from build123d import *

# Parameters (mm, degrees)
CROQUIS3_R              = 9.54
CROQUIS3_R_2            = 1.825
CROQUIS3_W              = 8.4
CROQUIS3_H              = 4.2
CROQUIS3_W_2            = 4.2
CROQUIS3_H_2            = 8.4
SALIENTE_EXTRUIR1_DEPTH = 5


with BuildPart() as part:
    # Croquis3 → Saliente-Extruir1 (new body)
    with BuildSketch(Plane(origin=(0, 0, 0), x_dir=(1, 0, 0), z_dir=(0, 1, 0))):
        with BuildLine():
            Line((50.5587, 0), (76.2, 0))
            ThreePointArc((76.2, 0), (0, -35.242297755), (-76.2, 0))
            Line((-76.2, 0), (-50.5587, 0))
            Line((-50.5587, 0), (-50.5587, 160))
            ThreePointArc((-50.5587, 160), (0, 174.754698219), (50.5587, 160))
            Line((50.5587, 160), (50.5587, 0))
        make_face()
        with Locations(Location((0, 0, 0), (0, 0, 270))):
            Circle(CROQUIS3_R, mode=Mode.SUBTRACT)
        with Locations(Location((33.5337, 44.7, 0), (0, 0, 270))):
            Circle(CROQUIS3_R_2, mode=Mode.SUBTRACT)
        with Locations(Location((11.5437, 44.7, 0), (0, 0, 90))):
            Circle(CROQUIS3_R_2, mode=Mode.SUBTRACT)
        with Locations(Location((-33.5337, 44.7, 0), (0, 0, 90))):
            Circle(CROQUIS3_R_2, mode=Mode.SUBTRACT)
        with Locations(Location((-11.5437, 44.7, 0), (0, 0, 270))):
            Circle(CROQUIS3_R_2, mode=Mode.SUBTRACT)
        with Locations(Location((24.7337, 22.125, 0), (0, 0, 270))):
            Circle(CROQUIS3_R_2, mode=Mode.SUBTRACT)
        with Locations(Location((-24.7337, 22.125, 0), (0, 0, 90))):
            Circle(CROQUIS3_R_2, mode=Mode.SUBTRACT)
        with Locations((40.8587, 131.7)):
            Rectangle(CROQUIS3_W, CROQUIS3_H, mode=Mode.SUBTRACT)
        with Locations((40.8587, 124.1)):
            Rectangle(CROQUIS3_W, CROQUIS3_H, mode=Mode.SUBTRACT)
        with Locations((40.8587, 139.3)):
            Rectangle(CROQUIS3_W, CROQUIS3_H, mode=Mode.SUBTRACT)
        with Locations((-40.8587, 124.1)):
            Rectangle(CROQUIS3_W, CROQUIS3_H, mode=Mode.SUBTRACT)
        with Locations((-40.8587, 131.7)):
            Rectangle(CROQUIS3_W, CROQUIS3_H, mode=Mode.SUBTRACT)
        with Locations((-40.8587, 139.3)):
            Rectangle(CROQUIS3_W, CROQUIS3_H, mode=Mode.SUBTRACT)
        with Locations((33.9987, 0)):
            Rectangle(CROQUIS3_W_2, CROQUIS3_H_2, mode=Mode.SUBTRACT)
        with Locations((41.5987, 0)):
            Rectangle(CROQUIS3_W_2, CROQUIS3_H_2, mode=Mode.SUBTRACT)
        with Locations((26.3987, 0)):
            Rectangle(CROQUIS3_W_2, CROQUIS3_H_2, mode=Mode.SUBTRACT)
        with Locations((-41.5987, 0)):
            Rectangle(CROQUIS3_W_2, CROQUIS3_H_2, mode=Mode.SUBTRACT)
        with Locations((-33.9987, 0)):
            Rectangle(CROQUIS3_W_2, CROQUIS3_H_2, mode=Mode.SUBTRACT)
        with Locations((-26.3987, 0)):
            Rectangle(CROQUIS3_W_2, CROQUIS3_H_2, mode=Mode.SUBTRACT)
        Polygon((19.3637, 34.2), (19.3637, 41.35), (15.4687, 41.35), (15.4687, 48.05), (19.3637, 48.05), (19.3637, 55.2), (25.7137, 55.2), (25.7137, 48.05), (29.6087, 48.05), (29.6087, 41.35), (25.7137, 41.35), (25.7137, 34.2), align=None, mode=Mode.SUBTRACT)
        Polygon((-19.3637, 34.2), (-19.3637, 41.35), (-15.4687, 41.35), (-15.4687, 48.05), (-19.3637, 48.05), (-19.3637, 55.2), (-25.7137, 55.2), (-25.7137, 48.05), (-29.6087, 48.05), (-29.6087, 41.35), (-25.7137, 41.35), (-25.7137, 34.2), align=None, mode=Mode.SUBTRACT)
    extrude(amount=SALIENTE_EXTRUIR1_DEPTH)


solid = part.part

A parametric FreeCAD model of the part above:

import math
import FreeCAD as App
import Part
import Sketcher


def add_polygon(sketch, points):
    """Adds a closed chain of lines whose ends are joined by coincident constraints."""
    first, n = sketch.GeometryCount, len(points)
    for a, b in zip(points, points[1:] + points[:1]):
        sketch.addGeometry(Part.LineSegment(App.Vector(*a, 0), App.Vector(*b, 0)), False)
    for i in range(n):
        sketch.addConstraint(Sketcher.Constraint("Coincident", first + i, 2, first + (i + 1) % n, 1))

doc = App.newDocument("Part")
body = doc.addObject("PartDesign::Body", "Body")

sketch1 = body.newObject("Sketcher::SketchObject", "Sketch")
sketch1.AttachmentSupport = (doc.getObject("XZ_Plane"), [""])
sketch1.MapMode = "FlatFace"
sketch1.addGeometry(Part.LineSegment(App.Vector(76.2, 0, 0), App.Vector(50.5587, 0, 0)), False)
sketch1.addGeometry(Part.LineSegment(App.Vector(50.5587, 0, 0), App.Vector(50.5587, -160, 0)), False)
sketch1.addGeometry(Part.ArcOfCircle(Part.Circle(App.Vector(0, -80.754698, 0), App.Vector(0, 0, 1), 94), math.radians(-122.537977), math.radians(-57.462023)), False)
sketch1.addGeometry(Part.LineSegment(App.Vector(-50.5587, -160, 0), App.Vector(-50.5587, 0, 0)), False)
sketch1.addGeometry(Part.LineSegment(App.Vector(-50.5587, 0, 0), App.Vector(-76.2, 0, 0)), False)
sketch1.addGeometry(Part.ArcOfCircle(Part.Circle(App.Vector(0, -64.757702, 0), App.Vector(0, 0, 1), 100), math.radians(40.359168), math.radians(139.640832)), False)
add_polygon(sketch1, [(39.4987, 4.2), (39.4987, -4.2), (43.6987, -4.2), (43.6987, 4.2)])
add_polygon(sketch1, [(31.8987, 4.2), (31.8987, -4.2), (36.0987, -4.2), (36.0987, 4.2)])
add_polygon(sketch1, [(24.2987, 4.2), (24.2987, -4.2), (28.4987, -4.2), (28.4987, 4.2)])
sketch1.addGeometry(Part.Circle(App.Vector(24.7337, -22.125, 0), App.Vector(0, 0, 1), 1.825), False)
sketch1.addGeometry(Part.Circle(App.Vector(0, 0, 0), App.Vector(0, 0, 1), 9.54), False)
sketch1.addGeometry(Part.Circle(App.Vector(33.5337, -44.7, 0), App.Vector(0, 0, 1), 1.825), False)
add_polygon(sketch1, [(19.3637, -34.2), (19.3637, -41.35), (15.4687, -41.35), (15.4687, -48.05), (19.3637, -48.05), (19.3637, -55.2), (25.7137, -55.2), (25.7137, -48.05), (29.6087, -48.05), (29.6087, -41.35), (25.7137, -41.35), (25.7137, -34.2)])
sketch1.addGeometry(Part.Circle(App.Vector(11.5437, -44.7, 0), App.Vector(0, 0, 1), 1.825), False)
add_polygon(sketch1, [(-28.4987, 4.2), (-28.4987, -4.2), (-24.2987, -4.2), (-24.2987, 4.2)])
add_polygon(sketch1, [(-36.0987, 4.2), (-36.0987, -4.2), (-31.8987, -4.2), (-31.8987, 4.2)])
add_polygon(sketch1, [(-43.6987, 4.2), (-43.6987, -4.2), (-39.4987, -4.2), (-39.4987, 4.2)])
sketch1.addGeometry(Part.Circle(App.Vector(-24.7337, -22.125, 0), App.Vector(0, 0, 1), 1.825), False)
sketch1.addGeometry(Part.Circle(App.Vector(-11.5437, -44.7, 0), App.Vector(0, 0, 1), 1.825), False)
add_polygon(sketch1, [(-19.3637, -34.2), (-25.7137, -34.2), (-25.7137, -41.35), (-29.6087, -41.35), (-29.6087, -48.05), (-25.7137, -48.05), (-25.7137, -55.2), (-19.3637, -55.2), (-19.3637, -48.05), (-15.4687, -48.05), (-15.4687, -41.35), (-19.3637, -41.35)])
sketch1.addGeometry(Part.Circle(App.Vector(-33.5337, -44.7, 0), App.Vector(0, 0, 1), 1.825), False)
add_polygon(sketch1, [(36.6587, -122), (36.6587, -126.2), (45.0587, -126.2), (45.0587, -122)])
add_polygon(sketch1, [(36.6587, -129.6), (36.6587, -133.8), (45.0587, -133.8), (45.0587, -129.6)])
add_polygon(sketch1, [(36.6587, -137.2), (36.6587, -141.4), (45.0587, -141.4), (45.0587, -137.2)])
add_polygon(sketch1, [(-45.0587, -122), (-45.0587, -126.2), (-36.6587, -126.2), (-36.6587, -122)])
add_polygon(sketch1, [(-45.0587, -129.6), (-45.0587, -133.8), (-36.6587, -133.8), (-36.6587, -129.6)])
add_polygon(sketch1, [(-45.0587, -137.2), (-45.0587, -141.4), (-36.6587, -141.4), (-36.6587, -137.2)])
sketch1.addConstraint(Sketcher.Constraint("Coincident", 0, 2, 1, 1))
sketch1.addConstraint(Sketcher.Constraint("Coincident", 1, 2, 2, 2))
sketch1.addConstraint(Sketcher.Constraint("Coincident", 2, 1, 3, 1))
sketch1.addConstraint(Sketcher.Constraint("Coincident", 3, 2, 4, 1))
sketch1.addConstraint(Sketcher.Constraint("Coincident", 4, 2, 5, 2))
sketch1.addConstraint(Sketcher.Constraint("Coincident", 5, 1, 0, 1))
sketch1.addConstraint(Sketcher.Constraint("Horizontal", 0))
sketch1.addConstraint(Sketcher.Constraint("Vertical", 1))
sketch1.addConstraint(Sketcher.Constraint("Vertical", 3))
sketch1.addConstraint(Sketcher.Constraint("Horizontal", 4))
sketch1.addConstraint(Sketcher.Constraint("Vertical", 6))
sketch1.addConstraint(Sketcher.Constraint("Horizontal", 7))
sketch1.addConstraint(Sketcher.Constraint("Vertical", 8))
sketch1.addConstraint(Sketcher.Constraint("Horizontal", 9))
sketch1.addConstraint(Sketcher.Constraint("Vertical", 10))
sketch1.addConstraint(Sketcher.Constraint("Horizontal", 11))
sketch1.addConstraint(Sketcher.Constraint("Vertical", 12))
sketch1.addConstraint(Sketcher.Constraint("Horizontal", 13))
sketch1.addConstraint(Sketcher.Constraint("Vertical", 14))
sketch1.addConstraint(Sketcher.Constraint("Horizontal", 15))
sketch1.addConstraint(Sketcher.Constraint("Vertical", 16))
sketch1.addConstraint(Sketcher.Constraint("Horizontal", 17))
sketch1.addConstraint(Sketcher.Constraint("Vertical", 21))
sketch1.addConstraint(Sketcher.Constraint("Horizontal", 22))
sketch1.addConstraint(Sketcher.Constraint("Vertical", 23))
sketch1.addConstraint(Sketcher.Constraint("Horizontal", 24))
sketch1.addConstraint(Sketcher.Constraint("Vertical", 25))
sketch1.addConstraint(Sketcher.Constraint("Horizontal", 26))
sketch1.addConstraint(Sketcher.Constraint("Vertical", 27))
sketch1.addConstraint(Sketcher.Constraint("Horizontal", 28))
sketch1.addConstraint(Sketcher.Constraint("Vertical", 29))
sketch1.addConstraint(Sketcher.Constraint("Horizontal", 30))
sketch1.addConstraint(Sketcher.Constraint("Vertical", 31))
sketch1.addConstraint(Sketcher.Constraint("Horizontal", 32))
sketch1.addConstraint(Sketcher.Constraint("Vertical", 34))
sketch1.addConstraint(Sketcher.Constraint("Horizontal", 35))
sketch1.addConstraint(Sketcher.Constraint("Vertical", 36))
sketch1.addConstraint(Sketcher.Constraint("Horizontal", 37))
sketch1.addConstraint(Sketcher.Constraint("Vertical", 38))
sketch1.addConstraint(Sketcher.Constraint("Horizontal", 39))
sketch1.addConstraint(Sketcher.Constraint("Vertical", 40))
sketch1.addConstraint(Sketcher.Constraint("Horizontal", 41))
sketch1.addConstraint(Sketcher.Constraint("Vertical", 42))
sketch1.addConstraint(Sketcher.Constraint("Horizontal", 43))
sketch1.addConstraint(Sketcher.Constraint("Vertical", 44))
sketch1.addConstraint(Sketcher.Constraint("Horizontal", 45))
sketch1.addConstraint(Sketcher.Constraint("Horizontal", 48))
sketch1.addConstraint(Sketcher.Constraint("Vertical", 49))
sketch1.addConstraint(Sketcher.Constraint("Horizontal", 50))
sketch1.addConstraint(Sketcher.Constraint("Vertical", 51))
sketch1.addConstraint(Sketcher.Constraint("Horizontal", 52))
sketch1.addConstraint(Sketcher.Constraint("Vertical", 53))
sketch1.addConstraint(Sketcher.Constraint("Horizontal", 54))
sketch1.addConstraint(Sketcher.Constraint("Vertical", 55))
sketch1.addConstraint(Sketcher.Constraint("Horizontal", 56))
sketch1.addConstraint(Sketcher.Constraint("Vertical", 57))
sketch1.addConstraint(Sketcher.Constraint("Horizontal", 58))
sketch1.addConstraint(Sketcher.Constraint("Vertical", 59))
sketch1.addConstraint(Sketcher.Constraint("Vertical", 61))
sketch1.addConstraint(Sketcher.Constraint("Horizontal", 62))
sketch1.addConstraint(Sketcher.Constraint("Vertical", 63))
sketch1.addConstraint(Sketcher.Constraint("Horizontal", 64))
sketch1.addConstraint(Sketcher.Constraint("Vertical", 65))
sketch1.addConstraint(Sketcher.Constraint("Horizontal", 66))
sketch1.addConstraint(Sketcher.Constraint("Vertical", 67))
sketch1.addConstraint(Sketcher.Constraint("Horizontal", 68))
sketch1.addConstraint(Sketcher.Constraint("Vertical", 69))
sketch1.addConstraint(Sketcher.Constraint("Horizontal", 70))
sketch1.addConstraint(Sketcher.Constraint("Vertical", 71))
sketch1.addConstraint(Sketcher.Constraint("Horizontal", 72))
sketch1.addConstraint(Sketcher.Constraint("Vertical", 73))
sketch1.addConstraint(Sketcher.Constraint("Horizontal", 74))
sketch1.addConstraint(Sketcher.Constraint("Vertical", 75))
sketch1.addConstraint(Sketcher.Constraint("Horizontal", 76))
sketch1.addConstraint(Sketcher.Constraint("Vertical", 77))
sketch1.addConstraint(Sketcher.Constraint("Horizontal", 78))
sketch1.addConstraint(Sketcher.Constraint("Vertical", 79))
sketch1.addConstraint(Sketcher.Constraint("Horizontal", 80))
sketch1.addConstraint(Sketcher.Constraint("Vertical", 81))
sketch1.addConstraint(Sketcher.Constraint("Horizontal", 82))
sketch1.addConstraint(Sketcher.Constraint("Vertical", 83))
sketch1.addConstraint(Sketcher.Constraint("Horizontal", 84))
sketch1.addConstraint(Sketcher.Constraint("Coincident", 19, 3, -1, 1))
sketch1.addConstraint(Sketcher.Constraint("Equal", 18, 20))
sketch1.addConstraint(Sketcher.Constraint("Equal", 20, 33))
sketch1.addConstraint(Sketcher.Constraint("Equal", 33, 46))
sketch1.addConstraint(Sketcher.Constraint("Equal", 46, 47))
sketch1.addConstraint(Sketcher.Constraint("Equal", 47, 60))
sketch1.addConstraint(Sketcher.Constraint("Symmetric", 0, 2, 3, 2, -1, 1))
sketch1.addConstraint(Sketcher.Constraint("Symmetric", 16, 2, 34, 2, -1, 1))
sketch1.addConstraint(Sketcher.Constraint("Symmetric", 14, 2, 36, 2, -1, 1))
sketch1.addConstraint(Sketcher.Constraint("Symmetric", 12, 2, 38, 2, -1, 1))
sketch1.addConstraint(Sketcher.Constraint("Symmetric", 10, 2, 40, 2, -1, 1))
sketch1.addConstraint(Sketcher.Constraint("Symmetric", 8, 2, 42, 2, -1, 1))
sketch1.addConstraint(Sketcher.Constraint("Symmetric", 6, 2, 44, 2, -1, 1))
sketch1.addConstraint(Sketcher.Constraint("Symmetric", 18, 3, 46, 3, -2))
sketch1.addConstraint(Sketcher.Constraint("Symmetric", 33, 3, 47, 3, -2))
sketch1.addConstraint(Sketcher.Constraint("Symmetric", 20, 3, 60, 3, -2))
sketch1.addConstraint(Sketcher.Constraint("Symmetric", 4, 2, 5, 1, -2))
sketch1.addConstraint(Sketcher.Constraint("Symmetric", 31, 2, 48, 2, -2))
sketch1.addConstraint(Sketcher.Constraint("Symmetric", 29, 2, 50, 2, -2))
sketch1.addConstraint(Sketcher.Constraint("Symmetric", 27, 2, 52, 2, -2))
sketch1.addConstraint(Sketcher.Constraint("Symmetric", 25, 2, 54, 2, -2))
sketch1.addConstraint(Sketcher.Constraint("Symmetric", 23, 2, 56, 2, -2))
sketch1.addConstraint(Sketcher.Constraint("Symmetric", 21, 2, 58, 2, -2))
sketch1.addConstraint(Sketcher.Constraint("Symmetric", 62, 2, 73, 2, -2))
sketch1.addConstraint(Sketcher.Constraint("Symmetric", 64, 2, 75, 2, -2))
sketch1.addConstraint(Sketcher.Constraint("Symmetric", 66, 2, 77, 2, -2))
sketch1.addConstraint(Sketcher.Constraint("Symmetric", 68, 2, 79, 2, -2))
sketch1.addConstraint(Sketcher.Constraint("Symmetric", 70, 2, 81, 2, -2))
sketch1.addConstraint(Sketcher.Constraint("Symmetric", 72, 2, 83, 2, -2))
sketch1.addConstraint(Sketcher.Constraint("PointOnObject", 2, 3, -2))
sketch1.addConstraint(Sketcher.Constraint("Horizontal", 20, 3, 33, 3))
sketch1.addConstraint(Sketcher.Constraint("Horizontal", 7, 2, 10, 2))
sketch1.addConstraint(Sketcher.Constraint("Horizontal", 9, 2, 12, 2))
sketch1.addConstraint(Sketcher.Constraint("Horizontal", 11, 2, 14, 2))
sketch1.addConstraint(Sketcher.Constraint("Horizontal", 13, 2, 16, 2))
sketch1.addConstraint(Sketcher.Constraint("Horizontal", 24, 2, 27, 2))
sketch1.addConstraint(Sketcher.Constraint("Horizontal", 22, 2, 29, 2))
sketch1.addConstraint(Sketcher.Constraint("Horizontal", 15, 2, 34, 2))
sketch1.addConstraint(Sketcher.Constraint("Vertical", 21, 2, 24, 2))
sketch1.addConstraint(Sketcher.Constraint("Vertical", 27, 2, 30, 2))
sketch1.addConstraint(Sketcher.Constraint("Vertical", 64, 2, 65, 2))
sketch1.addConstraint(Sketcher.Constraint("Vertical", 63, 2, 66, 2))
sketch1.addConstraint(Sketcher.Constraint("Vertical", 68, 2, 69, 2))
sketch1.addConstraint(Sketcher.Constraint("Vertical", 67, 2, 70, 2))
sketch1.addConstraint(Sketcher.Constraint("Equal", 9, 11))
sketch1.addConstraint(Sketcher.Constraint("Equal", 13, 15))
sketch1.addConstraint(Sketcher.Constraint("Equal", 24, 28))
sketch1.addConstraint(Sketcher.Constraint("Equal", 84, 6))
sketch1.addConstraint(Sketcher.Constraint("Equal", 21, 25))
sketch1.addConstraint(Sketcher.Constraint("Equal", 45, 61))
sketch1.addConstraint(Sketcher.Constraint("Equal", 63, 65))
sketch1.addConstraint(Sketcher.Constraint("Equal", 67, 69))
sketch1.addConstraint(Sketcher.Constraint("Radius", 2, 94.0))
sketch1.addConstraint(Sketcher.Constraint("Radius", 5, 100.0))
sketch1.addConstraint(Sketcher.Constraint("Diameter", 18, 3.65))
sketch1.addConstraint(Sketcher.Constraint("Diameter", 19, 19.08))
sketch1.addConstraint(Sketcher.Constraint("DistanceY", 1, 2, 1, 1, 160.0))
sketch1.addConstraint(Sketcher.Constraint("DistanceX", 7, 1, 7, 2, 4.2))
sketch1.addConstraint(Sketcher.Constraint("DistanceX", 62, 1, 62, 2, 8.4))
sketch1.addConstraint(Sketcher.Constraint("DistanceY", 23, 2, 23, 1, 6.7))
sketch1.addConstraint(Sketcher.Constraint("DistanceY", 63, 2, -1, 1, 122.0))
sketch1.addConstraint(Sketcher.Constraint("DistanceX", 26, 1, 26, 2, 6.35))
sketch1.addConstraint(Sketcher.Constraint("DistanceY", 21, 2, 21, 1, 7.15))
sketch1.addConstraint(Sketcher.Constraint("DistanceY", 20, 3, -1, 1, 44.7))
sketch1.addConstraint(Sketcher.Constraint("DistanceX", 4, 2, -1, 1, 76.2))
sketch1.addConstraint(Sketcher.Constraint("DistanceY", 25, 2, -1, 1, 55.2))
sketch1.addConstraint(Sketcher.Constraint("DistanceY", 65, 2, -1, 1, 133.8))
sketch1.addConstraint(Sketcher.Constraint("DistanceY", 69, 2, -1, 1, 141.4))
sketch1.addConstraint(Sketcher.Constraint("DistanceX", 22, 2, 22, 1, 3.895))
sketch1.addConstraint(Sketcher.Constraint("DistanceX", 0, 2, 0, 1, 25.6413))
sketch1.addConstraint(Sketcher.Constraint("DistanceY", 18, 3, -1, 1, 22.125))
sketch1.addConstraint(Sketcher.Constraint("DistanceX", -1, 1, 18, 3, 24.7337))
sketch1.addConstraint(Sketcher.Constraint("DistanceX", -1, 1, 20, 3, 33.5337))
sketch1.addConstraint(Sketcher.Constraint("DistanceX", -1, 1, 33, 3, 11.5437))
sketch1.addConstraint(Sketcher.Constraint("DistanceX", -1, 1, 6, 2, 39.4987))
sketch1.addConstraint(Sketcher.Constraint("DistanceX", -1, 1, 10, 2, 31.8987))
sketch1.addConstraint(Sketcher.Constraint("DistanceX", -1, 1, 14, 2, 24.2987))
sketch1.addConstraint(Sketcher.Constraint("DistanceX", -1, 1, 21, 2, 19.3637))
sketch1.addConstraint(Sketcher.Constraint("DistanceX", -1, 1, 61, 2, 36.6587))
pad1 = body.newObject("PartDesign::Pad", "Pad")
pad1.Profile = sketch1
pad1.Length = 5
pad1.Reversed = True

doc.recompute()
